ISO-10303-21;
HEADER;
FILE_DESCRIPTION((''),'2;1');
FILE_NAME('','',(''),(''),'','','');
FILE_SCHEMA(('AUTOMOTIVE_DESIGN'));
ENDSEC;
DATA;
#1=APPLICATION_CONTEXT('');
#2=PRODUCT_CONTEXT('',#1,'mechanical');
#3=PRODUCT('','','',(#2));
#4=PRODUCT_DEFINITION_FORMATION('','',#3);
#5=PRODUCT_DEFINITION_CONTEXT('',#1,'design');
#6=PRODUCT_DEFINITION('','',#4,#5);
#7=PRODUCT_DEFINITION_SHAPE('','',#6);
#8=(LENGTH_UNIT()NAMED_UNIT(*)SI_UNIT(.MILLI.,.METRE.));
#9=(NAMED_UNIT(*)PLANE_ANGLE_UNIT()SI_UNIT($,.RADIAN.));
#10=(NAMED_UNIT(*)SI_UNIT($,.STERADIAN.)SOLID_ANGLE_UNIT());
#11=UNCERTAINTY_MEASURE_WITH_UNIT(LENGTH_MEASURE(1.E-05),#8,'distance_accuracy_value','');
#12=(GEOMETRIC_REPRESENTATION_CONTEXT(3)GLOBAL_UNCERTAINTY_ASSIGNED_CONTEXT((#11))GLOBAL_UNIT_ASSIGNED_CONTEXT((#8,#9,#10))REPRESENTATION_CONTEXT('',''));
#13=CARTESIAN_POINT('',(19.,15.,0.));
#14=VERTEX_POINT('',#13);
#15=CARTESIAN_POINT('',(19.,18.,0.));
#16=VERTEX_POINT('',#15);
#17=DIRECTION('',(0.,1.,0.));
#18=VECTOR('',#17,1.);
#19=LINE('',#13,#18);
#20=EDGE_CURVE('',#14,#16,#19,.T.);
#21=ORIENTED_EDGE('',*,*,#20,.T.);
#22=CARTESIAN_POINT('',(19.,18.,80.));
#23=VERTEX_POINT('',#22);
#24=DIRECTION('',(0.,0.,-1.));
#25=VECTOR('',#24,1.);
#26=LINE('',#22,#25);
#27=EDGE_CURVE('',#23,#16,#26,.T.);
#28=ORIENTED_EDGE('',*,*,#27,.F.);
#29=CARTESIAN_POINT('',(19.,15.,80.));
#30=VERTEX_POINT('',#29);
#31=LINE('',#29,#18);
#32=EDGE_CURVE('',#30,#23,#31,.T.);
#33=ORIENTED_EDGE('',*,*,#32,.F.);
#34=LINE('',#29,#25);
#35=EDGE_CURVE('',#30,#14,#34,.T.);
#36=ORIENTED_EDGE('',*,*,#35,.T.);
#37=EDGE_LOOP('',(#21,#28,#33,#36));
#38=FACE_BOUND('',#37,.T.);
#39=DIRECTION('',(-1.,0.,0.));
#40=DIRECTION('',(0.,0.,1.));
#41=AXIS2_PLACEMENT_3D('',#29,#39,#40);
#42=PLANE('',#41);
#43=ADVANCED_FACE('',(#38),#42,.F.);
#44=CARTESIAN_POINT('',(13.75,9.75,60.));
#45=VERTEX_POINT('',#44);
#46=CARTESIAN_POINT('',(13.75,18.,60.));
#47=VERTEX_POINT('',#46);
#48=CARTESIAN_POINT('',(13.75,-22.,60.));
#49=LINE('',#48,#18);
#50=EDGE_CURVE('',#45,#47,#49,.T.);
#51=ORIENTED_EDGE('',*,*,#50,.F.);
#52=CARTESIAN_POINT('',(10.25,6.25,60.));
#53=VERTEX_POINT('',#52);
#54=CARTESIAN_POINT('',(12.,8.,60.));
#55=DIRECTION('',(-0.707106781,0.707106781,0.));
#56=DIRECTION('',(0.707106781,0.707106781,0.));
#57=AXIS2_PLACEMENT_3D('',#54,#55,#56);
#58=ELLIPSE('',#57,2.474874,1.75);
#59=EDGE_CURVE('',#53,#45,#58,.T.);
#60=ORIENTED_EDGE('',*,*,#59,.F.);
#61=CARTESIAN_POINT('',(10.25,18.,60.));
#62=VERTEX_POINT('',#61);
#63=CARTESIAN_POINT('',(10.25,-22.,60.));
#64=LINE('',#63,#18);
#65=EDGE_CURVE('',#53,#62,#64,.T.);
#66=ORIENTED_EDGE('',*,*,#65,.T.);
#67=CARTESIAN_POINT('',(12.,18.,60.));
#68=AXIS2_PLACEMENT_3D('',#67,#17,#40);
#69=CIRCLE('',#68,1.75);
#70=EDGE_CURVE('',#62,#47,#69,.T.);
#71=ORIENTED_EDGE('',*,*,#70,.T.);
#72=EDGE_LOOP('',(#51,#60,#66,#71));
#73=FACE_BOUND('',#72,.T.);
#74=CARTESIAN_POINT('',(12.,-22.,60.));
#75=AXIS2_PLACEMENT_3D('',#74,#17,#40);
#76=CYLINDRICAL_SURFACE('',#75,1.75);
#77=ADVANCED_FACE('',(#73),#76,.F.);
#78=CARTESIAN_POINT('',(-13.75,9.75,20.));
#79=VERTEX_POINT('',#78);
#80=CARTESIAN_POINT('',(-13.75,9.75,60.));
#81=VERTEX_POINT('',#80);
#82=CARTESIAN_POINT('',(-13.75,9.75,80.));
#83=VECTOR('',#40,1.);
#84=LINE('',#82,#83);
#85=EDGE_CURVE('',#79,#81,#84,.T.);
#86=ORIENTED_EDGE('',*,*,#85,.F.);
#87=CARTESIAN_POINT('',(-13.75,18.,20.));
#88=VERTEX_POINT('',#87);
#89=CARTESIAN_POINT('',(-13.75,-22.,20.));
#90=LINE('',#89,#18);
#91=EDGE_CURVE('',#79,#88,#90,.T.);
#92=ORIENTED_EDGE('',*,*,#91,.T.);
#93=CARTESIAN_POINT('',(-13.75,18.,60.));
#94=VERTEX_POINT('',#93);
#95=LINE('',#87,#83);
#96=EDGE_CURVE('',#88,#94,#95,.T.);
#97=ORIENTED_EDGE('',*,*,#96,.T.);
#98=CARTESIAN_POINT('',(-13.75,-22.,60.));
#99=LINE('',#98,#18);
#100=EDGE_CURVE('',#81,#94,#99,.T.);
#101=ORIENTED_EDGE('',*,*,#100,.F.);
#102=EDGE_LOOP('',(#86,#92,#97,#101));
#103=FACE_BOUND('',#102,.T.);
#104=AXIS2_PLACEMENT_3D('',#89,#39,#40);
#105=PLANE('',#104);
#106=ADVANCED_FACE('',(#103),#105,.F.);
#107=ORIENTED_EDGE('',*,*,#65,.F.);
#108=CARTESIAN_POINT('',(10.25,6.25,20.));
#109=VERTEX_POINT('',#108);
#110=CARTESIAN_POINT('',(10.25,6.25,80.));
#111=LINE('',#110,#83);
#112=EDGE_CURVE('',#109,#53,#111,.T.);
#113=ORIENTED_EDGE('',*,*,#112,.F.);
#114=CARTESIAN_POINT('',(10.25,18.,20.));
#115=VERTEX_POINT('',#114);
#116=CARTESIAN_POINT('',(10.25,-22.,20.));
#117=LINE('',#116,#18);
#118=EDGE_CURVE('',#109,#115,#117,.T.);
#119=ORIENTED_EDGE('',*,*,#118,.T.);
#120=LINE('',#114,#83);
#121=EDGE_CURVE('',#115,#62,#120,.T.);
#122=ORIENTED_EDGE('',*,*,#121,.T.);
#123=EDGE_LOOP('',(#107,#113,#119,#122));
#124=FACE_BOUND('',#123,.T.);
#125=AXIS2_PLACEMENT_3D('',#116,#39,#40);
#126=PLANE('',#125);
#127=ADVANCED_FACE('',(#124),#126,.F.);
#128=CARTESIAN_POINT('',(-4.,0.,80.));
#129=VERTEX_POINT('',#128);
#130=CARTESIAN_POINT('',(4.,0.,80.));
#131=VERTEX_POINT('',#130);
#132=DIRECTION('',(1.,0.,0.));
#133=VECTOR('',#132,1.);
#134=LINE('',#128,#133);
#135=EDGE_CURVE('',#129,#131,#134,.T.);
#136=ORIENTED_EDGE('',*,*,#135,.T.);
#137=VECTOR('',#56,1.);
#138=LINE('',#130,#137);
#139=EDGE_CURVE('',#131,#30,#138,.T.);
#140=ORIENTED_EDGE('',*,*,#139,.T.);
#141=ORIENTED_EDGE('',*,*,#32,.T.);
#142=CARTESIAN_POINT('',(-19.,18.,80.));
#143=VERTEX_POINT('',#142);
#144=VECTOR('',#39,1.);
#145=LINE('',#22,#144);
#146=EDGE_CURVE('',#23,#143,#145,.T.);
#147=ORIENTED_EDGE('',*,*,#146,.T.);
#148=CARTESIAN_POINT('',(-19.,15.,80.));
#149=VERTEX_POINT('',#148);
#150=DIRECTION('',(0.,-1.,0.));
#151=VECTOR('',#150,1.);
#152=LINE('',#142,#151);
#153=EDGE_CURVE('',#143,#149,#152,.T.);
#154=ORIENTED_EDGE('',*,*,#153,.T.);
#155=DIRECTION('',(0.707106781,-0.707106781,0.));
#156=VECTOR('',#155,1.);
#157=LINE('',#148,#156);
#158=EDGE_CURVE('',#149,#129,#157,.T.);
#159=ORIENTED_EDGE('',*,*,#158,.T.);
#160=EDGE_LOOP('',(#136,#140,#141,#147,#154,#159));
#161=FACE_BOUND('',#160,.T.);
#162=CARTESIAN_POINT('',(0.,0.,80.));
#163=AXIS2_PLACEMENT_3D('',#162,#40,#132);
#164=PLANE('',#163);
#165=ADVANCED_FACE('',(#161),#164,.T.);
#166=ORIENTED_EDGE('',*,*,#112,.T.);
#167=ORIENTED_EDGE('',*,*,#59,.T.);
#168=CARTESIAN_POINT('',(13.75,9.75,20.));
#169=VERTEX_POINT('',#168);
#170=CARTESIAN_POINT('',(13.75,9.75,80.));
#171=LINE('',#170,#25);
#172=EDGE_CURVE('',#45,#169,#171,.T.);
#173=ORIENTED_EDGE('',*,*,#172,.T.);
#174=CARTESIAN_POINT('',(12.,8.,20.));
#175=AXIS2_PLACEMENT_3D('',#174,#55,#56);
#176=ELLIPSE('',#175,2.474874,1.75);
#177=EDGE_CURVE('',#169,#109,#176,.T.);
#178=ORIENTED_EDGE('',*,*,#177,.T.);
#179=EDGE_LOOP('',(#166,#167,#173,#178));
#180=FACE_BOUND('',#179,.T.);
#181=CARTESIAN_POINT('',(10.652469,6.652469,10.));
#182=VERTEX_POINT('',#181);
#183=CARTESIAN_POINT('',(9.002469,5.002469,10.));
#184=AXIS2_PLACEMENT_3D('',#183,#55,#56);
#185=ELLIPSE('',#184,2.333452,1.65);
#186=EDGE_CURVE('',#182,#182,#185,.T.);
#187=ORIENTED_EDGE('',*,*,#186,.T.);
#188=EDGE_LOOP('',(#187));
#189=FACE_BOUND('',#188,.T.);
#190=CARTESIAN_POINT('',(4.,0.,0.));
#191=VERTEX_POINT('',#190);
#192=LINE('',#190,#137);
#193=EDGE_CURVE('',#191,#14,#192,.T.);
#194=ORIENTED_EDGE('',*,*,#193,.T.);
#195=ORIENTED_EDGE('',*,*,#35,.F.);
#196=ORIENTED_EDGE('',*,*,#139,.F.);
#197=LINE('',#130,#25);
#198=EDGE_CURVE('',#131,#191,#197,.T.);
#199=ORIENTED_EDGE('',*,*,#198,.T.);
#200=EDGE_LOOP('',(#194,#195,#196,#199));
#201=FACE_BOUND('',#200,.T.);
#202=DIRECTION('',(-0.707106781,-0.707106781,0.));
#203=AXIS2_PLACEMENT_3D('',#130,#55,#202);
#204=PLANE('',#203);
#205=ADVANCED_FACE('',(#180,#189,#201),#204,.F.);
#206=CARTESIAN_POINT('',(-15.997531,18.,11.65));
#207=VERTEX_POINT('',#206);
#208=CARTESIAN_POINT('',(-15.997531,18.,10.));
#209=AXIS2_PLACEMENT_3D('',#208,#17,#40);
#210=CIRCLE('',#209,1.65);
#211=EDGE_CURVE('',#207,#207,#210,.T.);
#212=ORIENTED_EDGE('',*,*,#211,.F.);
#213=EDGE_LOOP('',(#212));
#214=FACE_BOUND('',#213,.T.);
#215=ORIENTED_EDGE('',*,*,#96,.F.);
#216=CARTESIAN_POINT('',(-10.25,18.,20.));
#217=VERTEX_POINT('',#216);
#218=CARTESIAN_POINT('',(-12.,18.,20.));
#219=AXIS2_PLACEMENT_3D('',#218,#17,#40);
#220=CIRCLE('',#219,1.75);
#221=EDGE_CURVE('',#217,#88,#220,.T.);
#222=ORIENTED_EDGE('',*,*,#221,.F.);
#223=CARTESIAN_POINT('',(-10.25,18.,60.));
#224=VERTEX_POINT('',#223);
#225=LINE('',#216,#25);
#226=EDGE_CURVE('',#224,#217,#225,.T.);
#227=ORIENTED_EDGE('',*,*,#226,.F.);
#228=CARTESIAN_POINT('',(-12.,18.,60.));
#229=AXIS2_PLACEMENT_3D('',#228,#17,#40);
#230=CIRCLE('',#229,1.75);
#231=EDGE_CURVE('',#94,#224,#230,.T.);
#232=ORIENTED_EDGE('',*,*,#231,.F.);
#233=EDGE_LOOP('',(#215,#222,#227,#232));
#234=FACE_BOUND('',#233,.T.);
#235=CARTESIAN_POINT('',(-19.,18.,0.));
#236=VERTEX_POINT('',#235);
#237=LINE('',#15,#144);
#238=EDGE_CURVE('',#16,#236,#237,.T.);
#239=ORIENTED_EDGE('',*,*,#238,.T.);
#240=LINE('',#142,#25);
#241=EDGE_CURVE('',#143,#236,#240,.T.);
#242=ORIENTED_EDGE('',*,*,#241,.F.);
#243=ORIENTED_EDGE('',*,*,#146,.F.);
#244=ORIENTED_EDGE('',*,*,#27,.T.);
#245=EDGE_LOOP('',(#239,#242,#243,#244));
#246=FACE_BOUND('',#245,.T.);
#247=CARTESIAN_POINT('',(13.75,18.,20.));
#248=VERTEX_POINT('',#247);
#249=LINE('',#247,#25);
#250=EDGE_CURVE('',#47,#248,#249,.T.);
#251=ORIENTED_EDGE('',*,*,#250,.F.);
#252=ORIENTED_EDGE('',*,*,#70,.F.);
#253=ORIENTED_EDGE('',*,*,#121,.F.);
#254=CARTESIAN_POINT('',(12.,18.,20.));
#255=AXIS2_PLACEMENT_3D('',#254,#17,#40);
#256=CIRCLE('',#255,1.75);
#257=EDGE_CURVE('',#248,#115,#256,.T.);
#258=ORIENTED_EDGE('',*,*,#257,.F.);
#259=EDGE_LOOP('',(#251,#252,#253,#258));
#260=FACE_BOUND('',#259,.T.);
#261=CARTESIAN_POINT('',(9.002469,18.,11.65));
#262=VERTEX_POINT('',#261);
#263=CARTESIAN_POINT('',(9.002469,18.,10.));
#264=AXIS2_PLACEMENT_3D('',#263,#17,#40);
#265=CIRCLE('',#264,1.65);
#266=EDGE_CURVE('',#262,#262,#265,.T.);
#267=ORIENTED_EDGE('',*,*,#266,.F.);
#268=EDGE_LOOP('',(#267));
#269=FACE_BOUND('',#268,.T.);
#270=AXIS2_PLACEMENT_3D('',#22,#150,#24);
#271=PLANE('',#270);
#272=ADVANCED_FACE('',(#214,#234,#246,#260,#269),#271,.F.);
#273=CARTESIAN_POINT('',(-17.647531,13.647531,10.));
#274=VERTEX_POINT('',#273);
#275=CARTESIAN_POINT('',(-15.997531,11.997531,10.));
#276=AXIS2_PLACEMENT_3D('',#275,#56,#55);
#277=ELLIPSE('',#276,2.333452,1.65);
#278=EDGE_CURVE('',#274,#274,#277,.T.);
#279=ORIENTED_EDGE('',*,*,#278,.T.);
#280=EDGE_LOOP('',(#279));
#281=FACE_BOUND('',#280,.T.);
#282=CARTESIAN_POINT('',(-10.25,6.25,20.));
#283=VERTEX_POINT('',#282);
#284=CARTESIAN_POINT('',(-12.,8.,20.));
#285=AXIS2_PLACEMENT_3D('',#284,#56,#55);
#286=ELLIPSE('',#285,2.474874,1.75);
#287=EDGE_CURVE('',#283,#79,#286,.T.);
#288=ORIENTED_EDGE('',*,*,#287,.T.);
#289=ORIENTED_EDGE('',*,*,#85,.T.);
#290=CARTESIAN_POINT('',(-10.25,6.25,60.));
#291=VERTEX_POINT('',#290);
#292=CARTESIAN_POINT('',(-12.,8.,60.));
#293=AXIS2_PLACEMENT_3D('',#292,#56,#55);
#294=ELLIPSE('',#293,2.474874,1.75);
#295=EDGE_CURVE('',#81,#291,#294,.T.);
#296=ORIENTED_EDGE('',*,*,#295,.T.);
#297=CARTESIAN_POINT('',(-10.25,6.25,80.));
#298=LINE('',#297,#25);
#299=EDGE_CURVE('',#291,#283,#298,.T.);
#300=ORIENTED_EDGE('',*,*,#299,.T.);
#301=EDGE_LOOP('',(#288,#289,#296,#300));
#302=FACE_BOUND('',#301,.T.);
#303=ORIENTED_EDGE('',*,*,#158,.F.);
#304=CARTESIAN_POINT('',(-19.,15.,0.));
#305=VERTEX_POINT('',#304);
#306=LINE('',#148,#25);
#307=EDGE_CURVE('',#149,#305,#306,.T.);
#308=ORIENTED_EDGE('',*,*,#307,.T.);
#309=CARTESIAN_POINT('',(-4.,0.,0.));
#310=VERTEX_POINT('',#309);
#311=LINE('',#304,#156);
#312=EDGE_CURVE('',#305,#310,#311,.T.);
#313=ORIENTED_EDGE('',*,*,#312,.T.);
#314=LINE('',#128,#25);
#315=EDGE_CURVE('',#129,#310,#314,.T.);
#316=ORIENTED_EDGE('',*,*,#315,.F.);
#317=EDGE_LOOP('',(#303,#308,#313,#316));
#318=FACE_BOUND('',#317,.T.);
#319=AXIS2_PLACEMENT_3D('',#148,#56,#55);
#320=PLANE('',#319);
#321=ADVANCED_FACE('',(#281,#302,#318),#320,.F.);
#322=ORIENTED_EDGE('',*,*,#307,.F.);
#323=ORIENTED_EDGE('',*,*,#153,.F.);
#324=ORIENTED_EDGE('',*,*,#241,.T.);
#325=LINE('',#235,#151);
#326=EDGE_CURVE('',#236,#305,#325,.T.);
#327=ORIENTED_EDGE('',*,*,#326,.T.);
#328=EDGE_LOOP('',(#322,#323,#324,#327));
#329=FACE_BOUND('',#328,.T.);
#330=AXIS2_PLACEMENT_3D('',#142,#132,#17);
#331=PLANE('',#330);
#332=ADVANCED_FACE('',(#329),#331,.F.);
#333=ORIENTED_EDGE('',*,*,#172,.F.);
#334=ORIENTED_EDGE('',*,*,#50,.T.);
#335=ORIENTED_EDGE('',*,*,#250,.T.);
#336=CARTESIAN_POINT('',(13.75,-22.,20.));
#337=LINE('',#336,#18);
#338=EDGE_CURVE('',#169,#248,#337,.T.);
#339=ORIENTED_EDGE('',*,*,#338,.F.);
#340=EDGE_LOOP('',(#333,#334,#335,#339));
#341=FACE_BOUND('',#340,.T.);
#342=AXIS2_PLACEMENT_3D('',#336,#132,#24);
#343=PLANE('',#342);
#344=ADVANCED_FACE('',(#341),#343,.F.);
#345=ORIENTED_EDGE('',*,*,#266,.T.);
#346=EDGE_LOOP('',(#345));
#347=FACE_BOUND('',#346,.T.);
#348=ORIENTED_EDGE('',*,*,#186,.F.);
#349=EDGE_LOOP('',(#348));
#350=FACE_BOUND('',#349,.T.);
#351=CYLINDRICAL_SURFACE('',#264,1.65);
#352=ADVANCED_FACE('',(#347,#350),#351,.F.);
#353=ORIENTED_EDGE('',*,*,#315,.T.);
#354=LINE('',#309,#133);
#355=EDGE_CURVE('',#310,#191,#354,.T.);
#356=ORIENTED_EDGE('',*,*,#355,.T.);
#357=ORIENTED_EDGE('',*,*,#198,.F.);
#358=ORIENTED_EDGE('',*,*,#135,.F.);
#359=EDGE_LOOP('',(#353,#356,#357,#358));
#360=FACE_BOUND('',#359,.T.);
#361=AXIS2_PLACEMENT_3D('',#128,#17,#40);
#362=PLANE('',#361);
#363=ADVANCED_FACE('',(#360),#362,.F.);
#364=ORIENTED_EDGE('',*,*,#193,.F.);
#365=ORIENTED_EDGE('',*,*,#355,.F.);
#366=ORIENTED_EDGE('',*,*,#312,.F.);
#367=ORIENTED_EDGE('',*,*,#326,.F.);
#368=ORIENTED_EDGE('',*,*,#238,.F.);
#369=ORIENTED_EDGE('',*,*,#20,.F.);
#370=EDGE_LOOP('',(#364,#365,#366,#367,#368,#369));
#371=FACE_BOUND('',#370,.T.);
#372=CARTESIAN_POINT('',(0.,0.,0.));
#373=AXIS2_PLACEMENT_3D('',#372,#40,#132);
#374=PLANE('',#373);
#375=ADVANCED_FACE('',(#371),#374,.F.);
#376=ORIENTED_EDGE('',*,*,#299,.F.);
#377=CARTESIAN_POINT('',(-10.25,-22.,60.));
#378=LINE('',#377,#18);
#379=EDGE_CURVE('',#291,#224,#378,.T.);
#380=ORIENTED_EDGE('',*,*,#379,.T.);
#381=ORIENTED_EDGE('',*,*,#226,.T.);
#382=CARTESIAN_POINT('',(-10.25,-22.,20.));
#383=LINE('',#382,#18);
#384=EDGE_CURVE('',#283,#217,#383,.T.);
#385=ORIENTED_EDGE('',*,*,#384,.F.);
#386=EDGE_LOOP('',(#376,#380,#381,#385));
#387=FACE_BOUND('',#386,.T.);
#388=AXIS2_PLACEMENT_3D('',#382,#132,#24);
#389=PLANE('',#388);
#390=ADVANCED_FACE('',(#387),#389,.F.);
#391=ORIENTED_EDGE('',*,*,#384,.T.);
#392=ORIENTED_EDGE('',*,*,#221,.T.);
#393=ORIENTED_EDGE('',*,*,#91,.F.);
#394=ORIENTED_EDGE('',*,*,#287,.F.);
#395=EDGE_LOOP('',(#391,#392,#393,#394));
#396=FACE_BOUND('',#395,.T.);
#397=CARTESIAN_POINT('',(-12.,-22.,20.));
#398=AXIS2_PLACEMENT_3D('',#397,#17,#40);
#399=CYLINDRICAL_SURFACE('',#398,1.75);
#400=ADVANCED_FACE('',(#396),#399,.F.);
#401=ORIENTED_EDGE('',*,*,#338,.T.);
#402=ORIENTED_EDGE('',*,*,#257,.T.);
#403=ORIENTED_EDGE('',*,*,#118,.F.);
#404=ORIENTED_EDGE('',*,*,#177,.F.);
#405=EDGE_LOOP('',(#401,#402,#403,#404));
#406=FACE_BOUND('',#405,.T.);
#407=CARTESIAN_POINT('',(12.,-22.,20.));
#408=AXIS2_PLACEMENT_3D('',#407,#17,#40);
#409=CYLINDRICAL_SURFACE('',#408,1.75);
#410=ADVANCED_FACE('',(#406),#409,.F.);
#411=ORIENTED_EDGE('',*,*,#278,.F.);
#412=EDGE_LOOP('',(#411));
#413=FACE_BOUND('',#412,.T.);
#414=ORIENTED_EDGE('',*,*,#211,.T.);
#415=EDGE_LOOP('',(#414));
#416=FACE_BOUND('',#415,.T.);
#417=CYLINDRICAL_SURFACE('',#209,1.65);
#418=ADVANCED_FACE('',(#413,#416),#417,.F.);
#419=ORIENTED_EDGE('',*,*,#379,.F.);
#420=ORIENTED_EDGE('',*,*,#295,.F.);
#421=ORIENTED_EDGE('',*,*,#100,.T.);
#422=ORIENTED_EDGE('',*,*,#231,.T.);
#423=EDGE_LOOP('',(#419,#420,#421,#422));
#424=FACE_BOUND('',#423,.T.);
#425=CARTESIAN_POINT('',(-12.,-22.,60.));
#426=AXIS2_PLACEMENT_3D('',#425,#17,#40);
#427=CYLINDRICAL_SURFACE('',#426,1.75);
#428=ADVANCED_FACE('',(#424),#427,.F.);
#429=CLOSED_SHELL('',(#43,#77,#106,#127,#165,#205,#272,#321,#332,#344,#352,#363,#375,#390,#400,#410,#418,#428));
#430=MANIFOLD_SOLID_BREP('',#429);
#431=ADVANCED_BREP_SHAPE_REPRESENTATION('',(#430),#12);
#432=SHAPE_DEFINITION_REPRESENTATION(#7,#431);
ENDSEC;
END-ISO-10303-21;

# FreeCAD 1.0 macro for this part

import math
import FreeCAD as App
import Part
import Sketcher
Q = App.Units.Quantity

doc = App.newDocument("Part")
body = doc.addObject("PartDesign::Body", "Body")

# Sketch on XY plane
sketch1 = body.newObject("Sketcher::SketchObject", "Sketch")
sketch1.AttachmentSupport = (doc.getObject("XY_Plane"), [""])
sketch1.MapMode = "FlatFace"
sketch1.addGeometry([
    Part.LineSegment(App.Vector(-4, 0, 0), App.Vector(4, 0, 0)),  # 0
    Part.LineSegment(App.Vector(4, 0, 0), App.Vector(19, 15, 0)),  # 1
    Part.LineSegment(App.Vector(19, 15, 0), App.Vector(19, 18, 0)),  # 2
    Part.LineSegment(App.Vector(19, 18, 0), App.Vector(-19, 18, 0)),  # 3
    Part.LineSegment(App.Vector(-19, 18, 0), App.Vector(-19, 15, 0)),  # 4
    Part.LineSegment(App.Vector(-19, 15, 0), App.Vector(-4, 0, 0)),  # 5
], False)
sketch1.addConstraint([
    Sketcher.Constraint("Coincident", 0, 2, 1, 1),
    Sketcher.Constraint("Coincident", 1, 2, 2, 1),
    Sketcher.Constraint("Coincident", 2, 2, 3, 1),
    Sketcher.Constraint("Coincident", 3, 2, 4, 1),
    Sketcher.Constraint("Coincident", 4, 2, 5, 1),
    Sketcher.Constraint("Coincident", 5, 2, 0, 1),
    Sketcher.Constraint("Horizontal", 0),
    Sketcher.Constraint("Vertical", 2),
    Sketcher.Constraint("Horizontal", 3),
    Sketcher.Constraint("Vertical", 4),
    Sketcher.Constraint("Symmetric", 0, 2, 5, 2, -1, 1),
    Sketcher.Constraint("Symmetric", 1, 2, 4, 2, -2),
    Sketcher.Constraint("Perpendicular", 1, 5),
    Sketcher.Constraint("DistanceX", 0, 1, 0, 2, Q("8 mm")),
    Sketcher.Constraint("DistanceX", 3, 2, 3, 1, Q("38 mm")),
    Sketcher.Constraint("DistanceY", 2, 1, 2, 2, Q("3 mm")),
])
pad1 = body.newObject("PartDesign::Pad", "Pad")
pad1.Profile = sketch1
pad1.Length = 80

# Sketch on XZ plane
sketch2 = body.newObject("Sketcher::SketchObject", "Sketch001")
sketch2.AttachmentSupport = (doc.getObject("XZ_Plane"), [""])
sketch2.MapMode = "FlatFace"
sketch2.AttachmentOffset = App.Placement(App.Vector(0, 0, -18), App.Rotation())
sketch2.addGeometry([
    Part.LineSegment(App.Vector(-10.2, 60, 0), App.Vector(-10.2, 20, 0)),  # 0
    Part.ArcOfCircle(Part.Circle(App.Vector(-12, 20, 0), App.Vector(0, 0, 1), 1.8), math.radians(180), math.radians(360)),  # 1
    Part.LineSegment(App.Vector(-13.8, 20, 0), App.Vector(-13.8, 60, 0)),  # 2
    Part.ArcOfCircle(Part.Circle(App.Vector(-12, 60, 0), App.Vector(0, 0, 1), 1.8), math.radians(0), math.radians(180)),  # 3
    Part.LineSegment(App.Vector(13.8, 60, 0), App.Vector(13.8, 20, 0)),  # 4
    Part.ArcOfCircle(Part.Circle(App.Vector(12, 20, 0), App.Vector(0, 0, 1), 1.8), math.radians(180), math.radians(360)),  # 5
    Part.LineSegment(App.Vector(10.2, 20, 0), App.Vector(10.2, 60, 0)),  # 6
    Part.ArcOfCircle(Part.Circle(App.Vector(12, 60, 0), App.Vector(0, 0, 1), 1.8), math.radians(0), math.radians(180)),  # 7
], False)
sketch2.addConstraint([
    Sketcher.Constraint("Tangent", 0, 2, 1, 2),
    Sketcher.Constraint("Tangent", 1, 1, 2, 1),
    Sketcher.Constraint("Tangent", 2, 2, 3, 2),
    Sketcher.Constraint("Tangent", 3, 1, 0, 1),
    Sketcher.Constraint("Tangent", 4, 2, 5, 2),
    Sketcher.Constraint("Tangent", 5, 1, 6, 1),
    Sketcher.Constraint("Tangent", 6, 2, 7, 2),
    Sketcher.Constraint("Tangent", 7, 1, 4, 1),
    Sketcher.Constraint("Vertical", 0),
    Sketcher.Constraint("Vertical", 2),
    Sketcher.Constraint("Vertical", 4),
    Sketcher.Constraint("Vertical", 6),
    Sketcher.Constraint("Equal", 3, 5),
    Sketcher.Constraint("Symmetric", 1, 3, 5, 3, -2),
    Sketcher.Constraint("Horizontal", 3, 3, 7, 3),
    Sketcher.Constraint("DistanceY", 0, 2, 0, 1, Q("40 mm")),
    Sketcher.Constraint("Radius", 1, Q("1.75 mm")),
    Sketcher.Constraint("DistanceX", 1, 3, -1, 1, Q("12 mm")),
    Sketcher.Constraint("DistanceY", -1, 1, 1, 3, Q("20 mm")),
])
pocket1 = body.newObject("PartDesign::Pocket", "Pocket")
pocket1.Profile = sketch2
pocket1.Length = 40
pocket1.Reversed = True

# Sketch on XZ plane
sketch3 = body.newObject("Sketcher::SketchObject", "Sketch002")
sketch3.AttachmentSupport = (doc.getObject("XZ_Plane"), [""])
sketch3.MapMode = "FlatFace"
sketch3.AttachmentOffset = App.Placement(App.Vector(0, 0, -18), App.Rotation())
sketch3.addGeometry([
    Part.Circle(App.Vector(9, 10, 0), App.Vector(0, 0, 1), 1.6),
    Part.Circle(App.Vector(-16, 10, 0), App.Vector(0, 0, 1), 1.6),
], False)
sketch3.addConstraint([
    Sketcher.Constraint("Equal", 0, 1),
    Sketcher.Constraint("Horizontal", 0, 3, 1, 3),
    Sketcher.Constraint("Diameter", 0, Q("3.3 mm")),
    Sketcher.Constraint("DistanceY", -1, 1, 0, 3, Q("10 mm")),
    Sketcher.Constraint("DistanceX", 1, 3, 0, 3, Q("25 mm")),
    Sketcher.Constraint("DistanceX", -1, 1, 0, 3, Q("9.002469 mm")),
])
doc.recompute()
hole = body.newObject("PartDesign::Hole", "Hole")
hole.Profile = sketch3
hole.ThreadType = "None"
hole.Diameter = 3.3
hole.DepthType = "ThroughAll"
hole.Reversed = True

doc.recompute()
